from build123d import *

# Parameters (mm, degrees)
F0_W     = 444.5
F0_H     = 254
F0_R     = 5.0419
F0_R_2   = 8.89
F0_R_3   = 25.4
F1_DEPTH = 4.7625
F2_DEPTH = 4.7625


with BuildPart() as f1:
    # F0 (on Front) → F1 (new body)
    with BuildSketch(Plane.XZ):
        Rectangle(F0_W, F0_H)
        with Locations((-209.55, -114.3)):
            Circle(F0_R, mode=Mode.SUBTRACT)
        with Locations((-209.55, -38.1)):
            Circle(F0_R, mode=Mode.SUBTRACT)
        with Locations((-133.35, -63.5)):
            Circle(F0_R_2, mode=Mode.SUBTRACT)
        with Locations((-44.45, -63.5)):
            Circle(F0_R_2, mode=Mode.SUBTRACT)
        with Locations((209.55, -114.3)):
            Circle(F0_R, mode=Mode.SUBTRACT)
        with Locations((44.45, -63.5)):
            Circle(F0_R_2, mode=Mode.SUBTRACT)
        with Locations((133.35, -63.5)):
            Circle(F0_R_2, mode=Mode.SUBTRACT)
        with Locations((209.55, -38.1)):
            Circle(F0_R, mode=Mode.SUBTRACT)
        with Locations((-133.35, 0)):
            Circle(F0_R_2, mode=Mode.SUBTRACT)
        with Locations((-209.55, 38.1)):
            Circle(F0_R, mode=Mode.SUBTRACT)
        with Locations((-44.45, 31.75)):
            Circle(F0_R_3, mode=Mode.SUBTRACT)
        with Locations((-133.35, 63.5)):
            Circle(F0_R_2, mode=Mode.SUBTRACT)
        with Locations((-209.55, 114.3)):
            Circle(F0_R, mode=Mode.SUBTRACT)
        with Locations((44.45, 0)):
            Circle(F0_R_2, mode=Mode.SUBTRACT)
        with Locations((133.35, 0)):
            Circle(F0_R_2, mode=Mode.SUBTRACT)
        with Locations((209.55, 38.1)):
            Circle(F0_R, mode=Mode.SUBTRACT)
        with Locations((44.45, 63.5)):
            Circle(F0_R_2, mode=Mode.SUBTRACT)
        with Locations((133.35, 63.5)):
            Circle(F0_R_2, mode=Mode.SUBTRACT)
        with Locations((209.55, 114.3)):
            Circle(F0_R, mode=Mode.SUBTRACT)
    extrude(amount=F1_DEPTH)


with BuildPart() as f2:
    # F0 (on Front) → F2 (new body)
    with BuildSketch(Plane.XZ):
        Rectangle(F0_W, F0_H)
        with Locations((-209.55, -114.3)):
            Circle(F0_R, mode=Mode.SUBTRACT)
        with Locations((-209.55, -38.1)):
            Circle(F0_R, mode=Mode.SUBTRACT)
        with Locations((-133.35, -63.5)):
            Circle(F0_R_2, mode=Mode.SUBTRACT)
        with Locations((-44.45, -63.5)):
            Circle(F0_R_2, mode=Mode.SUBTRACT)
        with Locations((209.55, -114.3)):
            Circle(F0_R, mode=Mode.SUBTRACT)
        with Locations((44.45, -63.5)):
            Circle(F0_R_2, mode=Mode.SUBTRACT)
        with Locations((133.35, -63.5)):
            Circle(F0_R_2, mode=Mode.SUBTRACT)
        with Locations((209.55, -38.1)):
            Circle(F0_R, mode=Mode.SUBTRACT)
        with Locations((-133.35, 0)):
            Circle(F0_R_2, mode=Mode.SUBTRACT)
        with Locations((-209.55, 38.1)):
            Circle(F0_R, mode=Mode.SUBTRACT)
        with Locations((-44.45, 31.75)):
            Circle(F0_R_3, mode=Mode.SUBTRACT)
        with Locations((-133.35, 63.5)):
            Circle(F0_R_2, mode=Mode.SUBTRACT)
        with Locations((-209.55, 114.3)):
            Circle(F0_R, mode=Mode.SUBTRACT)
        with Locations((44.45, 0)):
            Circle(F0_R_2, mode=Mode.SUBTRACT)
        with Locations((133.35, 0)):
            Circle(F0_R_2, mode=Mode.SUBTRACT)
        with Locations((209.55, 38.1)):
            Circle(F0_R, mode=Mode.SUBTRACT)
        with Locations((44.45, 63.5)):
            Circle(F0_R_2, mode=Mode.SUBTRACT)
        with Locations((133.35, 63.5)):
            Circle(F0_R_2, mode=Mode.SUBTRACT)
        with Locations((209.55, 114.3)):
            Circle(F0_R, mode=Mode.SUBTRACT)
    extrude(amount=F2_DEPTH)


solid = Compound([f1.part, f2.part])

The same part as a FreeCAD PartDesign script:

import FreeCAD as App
import Part
import Sketcher
Q = App.Units.Quantity

doc = App.newDocument("Part")
params = doc.addObject("Spreadsheet::Sheet", "Params")
for row, (alias, value) in enumerate([
    ("sketch1_diameter", "2 in"),
    ("sketch1_diameter2", "0.7 in"),
    ("sketch1_height", "10 in"),
    ("sketch1_diameter3", "0.397 in"),
    ("sketch1_width", "17.5 in"),
    ("pad1_length", "0.1875 in"),
    ("sketch2_diameter", "2 in"),
    ("sketch2_diameter2", "0.7 in"),
    ("sketch2_height", "10 in"),
    ("sketch2_diameter3", "0.397 in"),
    ("sketch2_width", "17.5 in"),
    ("pad2_length", "0.1875 in"),
], start=1):
    params.set(f"A{row}", alias)
    params.set(f"B{row}", "=" + value)
    params.setAlias(f"B{row}", alias)

body = doc.addObject("PartDesign::Body", "Body")

sketch1 = body.newObject("Sketcher::SketchObject", "Sketch")
sketch1.AttachmentSupport = (doc.getObject("XZ_Plane"), [""])
sketch1.MapMode = "FlatFace"
sketch1.addGeometry(Part.LineSegment(App.Vector(-222, 127, 0), App.Vector(-222, -127, 0)), False)
sketch1.addGeometry(Part.LineSegment(App.Vector(-222, -127, 0), App.Vector(222, -127, 0)), False)
sketch1.addGeometry(Part.LineSegment(App.Vector(222, -127, 0), App.Vector(222, 127, 0)), False)
sketch1.addGeometry(Part.LineSegment(App.Vector(222, 127, 0), App.Vector(-222, 127, 0)), False)
sketch1.addGeometry(Part.Circle(App.Vector(-210, -114, 0), App.Vector(0, 0, 1), 5), False)
sketch1.addGeometry(Part.Circle(App.Vector(-133, -64, 0), App.Vector(0, 0, 1), 9), False)
sketch1.addGeometry(Part.Circle(App.Vector(-44, -64, 0), App.Vector(0, 0, 1), 9), False)
sketch1.addGeometry(Part.Circle(App.Vector(-210, -38, 0), App.Vector(0, 0, 1), 5), False)
sketch1.addGeometry(Part.Circle(App.Vector(-133, 0, 0), App.Vector(0, 0, 1), 9), False)
sketch1.addGeometry(Part.Circle(App.Vector(44, -64, 0), App.Vector(0, 0, 1), 9), False)
sketch1.addGeometry(Part.Circle(App.Vector(210, -114, 0), App.Vector(0, 0, 1), 5), False)
sketch1.addGeometry(Part.Circle(App.Vector(133, -64, 0), App.Vector(0, 0, 1), 9), False)
sketch1.addGeometry(Part.Circle(App.Vector(44, 0, 0), App.Vector(0, 0, 1), 9), False)
sketch1.addGeometry(Part.Circle(App.Vector(210, -38, 0), App.Vector(0, 0, 1), 5), False)
sketch1.addGeometry(Part.Circle(App.Vector(133, 0, 0), App.Vector(0, 0, 1), 9), False)
sketch1.addGeometry(Part.Circle(App.Vector(-210, 38, 0), App.Vector(0, 0, 1), 5), False)
sketch1.addGeometry(Part.Circle(App.Vector(-44, 32, 0), App.Vector(0, 0, 1), 25), False)
sketch1.addGeometry(Part.Circle(App.Vector(-133, 64, 0), App.Vector(0, 0, 1), 9), False)
sketch1.addGeometry(Part.Circle(App.Vector(-210, 114, 0), App.Vector(0, 0, 1), 5), False)
sketch1.addGeometry(Part.Circle(App.Vector(210, 38, 0), App.Vector(0, 0, 1), 5), False)
sketch1.addGeometry(Part.Circle(App.Vector(44, 64, 0), App.Vector(0, 0, 1), 9), False)
sketch1.addGeometry(Part.Circle(App.Vector(133, 64, 0), App.Vector(0, 0, 1), 9), False)
sketch1.addGeometry(Part.Circle(App.Vector(210, 114, 0), App.Vector(0, 0, 1), 5), False)
sketch1.addConstraint(Sketcher.Constraint("Coincident", 0, 2, 1, 1))
sketch1.addConstraint(Sketcher.Constraint("Coincident", 1, 2, 2, 1))
sketch1.addConstraint(Sketcher.Constraint("Coincident", 2, 2, 3, 1))
sketch1.addConstraint(Sketcher.Constraint("Coincident", 3, 2, 0, 1))
sketch1.addConstraint(Sketcher.Constraint("Vertical", 0))
sketch1.addConstraint(Sketcher.Constraint("Horizontal", 1))
sketch1.addConstraint(Sketcher.Constraint("Vertical", 2))
sketch1.addConstraint(Sketcher.Constraint("Horizontal", 3))
sketch1.addConstraint(Sketcher.Constraint("Equal", 5, 6))
sketch1.addConstraint(Sketcher.Constraint("Equal", 4, 7))
sketch1.addConstraint(Sketcher.Constraint("Equal", 6, 8))
sketch1.addConstraint(Sketcher.Constraint("Equal", 8, 9))
sketch1.addConstraint(Sketcher.Constraint("Equal", 7, 10))
sketch1.addConstraint(Sketcher.Constraint("Equal", 9, 11))
sketch1.addConstraint(Sketcher.Constraint("Equal", 11, 12))
sketch1.addConstraint(Sketcher.Constraint("Equal", 10, 13))
sketch1.addConstraint(Sketcher.Constraint("Equal", 12, 14))
sketch1.addConstraint(Sketcher.Constraint("Equal", 13, 15))
sketch1.addConstraint(Sketcher.Constraint("Equal", 14, 17))
sketch1.addConstraint(Sketcher.Constraint("Equal", 15, 18))
sketch1.addConstraint(Sketcher.Constraint("Equal", 18, 19))
sketch1.addConstraint(Sketcher.Constraint("Equal", 17, 20))
sketch1.addConstraint(Sketcher.Constraint("Equal", 20, 21))
sketch1.addConstraint(Sketcher.Constraint("Equal", 19, 22))
sketch1.addConstraint(Sketcher.Constraint("Symmetric", 8, 3, 14, 3, -1, 1))
sketch1.addConstraint(Sketcher.Constraint("Symmetric", 13, 3, 15, 3, -1, 1))
sketch1.addConstraint(Sketcher.Constraint("Symmetric", 11, 3, 17, 3, -1, 1))
sketch1.addConstraint(Sketcher.Constraint("Symmetric", 10, 3, 18, 3, -1, 1))
sketch1.addConstraint(Sketcher.Constraint("Symmetric", 7, 3, 19, 3, -1, 1))
sketch1.addConstraint(Sketcher.Constraint("Symmetric", 6, 3, 20, 3, -1, 1))
sketch1.addConstraint(Sketcher.Constraint("Symmetric", 5, 3, 21, 3, -1, 1))
sketch1.addConstraint(Sketcher.Constraint("Symmetric", 4, 3, 22, 3, -1, 1))
sketch1.addConstraint(Sketcher.Constraint("Symmetric", 0, 2, 2, 2, -1, 1))
sketch1.addConstraint(Sketcher.Constraint("Symmetric", 6, 3, 9, 3, -2))
sketch1.addConstraint(Sketcher.Constraint("Symmetric", 4, 3, 10, 3, -2))
sketch1.addConstraint(Sketcher.Constraint("Symmetric", 5, 3, 11, 3, -2))
sketch1.addConstraint(Sketcher.Constraint("Symmetric", 7, 3, 13, 3, -2))
sketch1.addConstraint(Sketcher.Constraint("PointOnObject", 8, 3, -1))
sketch1.addConstraint(Sketcher.Constraint("PointOnObject", 12, 3, -1))
sketch1.addConstraint(Sketcher.Constraint("Horizontal", 5, 3, 6, 3))
sketch1.addConstraint(Sketcher.Constraint("Vertical", 4, 3, 7, 3))
sketch1.addConstraint(Sketcher.Constraint("Vertical", 5, 3, 8, 3))
sketch1.addConstraint(Sketcher.Constraint("Vertical", 9, 3, 12, 3))
sketch1.addConstraint(Sketcher.Constraint("Vertical", 6, 3, 16, 3))
sketch1.addConstraint(Sketcher.Constraint("Diameter", 16, Q("2 in")))
sketch1.addConstraint(Sketcher.Constraint("Diameter", 5, Q("0.7 in")))
sketch1.addConstraint(Sketcher.Constraint("DistanceY", 0, 2, 0, 1, Q("10 in")))
sketch1.addConstraint(Sketcher.Constraint("Diameter", 4, Q("0.397 in")))
sketch1.addConstraint(Sketcher.Constraint("DistanceX", 1, 1, 1, 2, Q("17.5 in")))
sketch1.addConstraint(Sketcher.Constraint("DistanceX", 4, 3, 5, 3, Q("3 in")))
sketch1.addConstraint(Sketcher.Constraint("DistanceY", 4, 3, 5, 3, Q("2 in")))
sketch1.addConstraint(Sketcher.Constraint("DistanceY", 4, 3, 7, 3, Q("3 in")))
sketch1.addConstraint(Sketcher.Constraint("DistanceX", 5, 3, 9, 3, Q("7 in")))
sketch1.addConstraint(Sketcher.Constraint("DistanceY", 7, 3, 15, 3, Q("3 in")))
sketch1.addConstraint(Sketcher.Constraint("DistanceX", 5, 3, 6, 3, Q("3.5 in")))
sketch1.addConstraint(Sketcher.Constraint("DistanceY", -1, 1, 16, 3, Q("1.25 in")))
sketch1.setExpression("Constraints[44]", "Params.sketch1_diameter")
sketch1.setExpression("Constraints[45]", "Params.sketch1_diameter2")
sketch1.setExpression("Constraints[46]", "Params.sketch1_height")
sketch1.setExpression("Constraints[47]", "Params.sketch1_diameter3")
sketch1.setExpression("Constraints[48]", "Params.sketch1_width")
pad1 = body.newObject("PartDesign::Pad", "Pad")
pad1.Profile = sketch1
pad1.setExpression("Length", "Params.pad1_length")
body2 = doc.addObject("PartDesign::Body", "Body001")

sketch2 = body2.newObject("Sketcher::SketchObject", "Sketch001")
sketch2.AttachmentSupport = (doc.getObject("XZ_Plane001"), [""])
sketch2.MapMode = "FlatFace"
sketch2.addGeometry(Part.LineSegment(App.Vector(-222, 127, 0), App.Vector(-222, -127, 0)), False)
sketch2.addGeometry(Part.LineSegment(App.Vector(-222, -127, 0), App.Vector(222, -127, 0)), False)
sketch2.addGeometry(Part.LineSegment(App.Vector(222, -127, 0), App.Vector(222, 127, 0)), False)
sketch2.addGeometry(Part.LineSegment(App.Vector(222, 127, 0), App.Vector(-222, 127, 0)), False)
sketch2.addGeometry(Part.Circle(App.Vector(-210, -114, 0), App.Vector(0, 0, 1), 5), False)
sketch2.addGeometry(Part.Circle(App.Vector(-133, -64, 0), App.Vector(0, 0, 1), 9), False)
sketch2.addGeometry(Part.Circle(App.Vector(-44, -64, 0), App.Vector(0, 0, 1), 9), False)
sketch2.addGeometry(Part.Circle(App.Vector(-210, -38, 0), App.Vector(0, 0, 1), 5), False)
sketch2.addGeometry(Part.Circle(App.Vector(-133, 0, 0), App.Vector(0, 0, 1), 9), False)
sketch2.addGeometry(Part.Circle(App.Vector(44, -64, 0), App.Vector(0, 0, 1), 9), False)
sketch2.addGeometry(Part.Circle(App.Vector(210, -114, 0), App.Vector(0, 0, 1), 5), False)
sketch2.addGeometry(Part.Circle(App.Vector(133, -64, 0), App.Vector(0, 0, 1), 9), False)
sketch2.addGeometry(Part.Circle(App.Vector(44, 0, 0), App.Vector(0, 0, 1), 9), False)
sketch2.addGeometry(Part.Circle(App.Vector(210, -38, 0), App.Vector(0, 0, 1), 5), False)
sketch2.addGeometry(Part.Circle(App.Vector(133, 0, 0), App.Vector(0, 0, 1), 9), False)
sketch2.addGeometry(Part.Circle(App.Vector(-210, 38, 0), App.Vector(0, 0, 1), 5), False)
sketch2.addGeometry(Part.Circle(App.Vector(-44, 32, 0), App.Vector(0, 0, 1), 25), False)
sketch2.addGeometry(Part.Circle(App.Vector(-133, 64, 0), App.Vector(0, 0, 1), 9), False)
sketch2.addGeometry(Part.Circle(App.Vector(-210, 114, 0), App.Vector(0, 0, 1), 5), False)
sketch2.addGeometry(Part.Circle(App.Vector(210, 38, 0), App.Vector(0, 0, 1), 5), False)
sketch2.addGeometry(Part.Circle(App.Vector(44, 64, 0), App.Vector(0, 0, 1), 9), False)
sketch2.addGeometry(Part.Circle(App.Vector(133, 64, 0), App.Vector(0, 0, 1), 9), False)
sketch2.addGeometry(Part.Circle(App.Vector(210, 114, 0), App.Vector(0, 0, 1), 5), False)
sketch2.addConstraint(Sketcher.Constraint("Coincident", 0, 2, 1, 1))
sketch2.addConstraint(Sketcher.Constraint("Coincident", 1, 2, 2, 1))
sketch2.addConstraint(Sketcher.Constraint("Coincident", 2, 2, 3, 1))
sketch2.addConstraint(Sketcher.Constraint("Coincident", 3, 2, 0, 1))
sketch2.addConstraint(Sketcher.Constraint("Vertical", 0))
sketch2.addConstraint(Sketcher.Constraint("Horizontal", 1))
sketch2.addConstraint(Sketcher.Constraint("Vertical", 2))
sketch2.addConstraint(Sketcher.Constraint("Horizontal", 3))
sketch2.addConstraint(Sketcher.Constraint("Equal", 5, 6))
sketch2.addConstraint(Sketcher.Constraint("Equal", 4, 7))
sketch2.addConstraint(Sketcher.Constraint("Equal", 6, 8))
sketch2.addConstraint(Sketcher.Constraint("Equal", 8, 9))
sketch2.addConstraint(Sketcher.Constraint("Equal", 7, 10))
sketch2.addConstraint(Sketcher.Constraint("Equal", 9, 11))
sketch2.addConstraint(Sketcher.Constraint("Equal", 11, 12))
sketch2.addConstraint(Sketcher.Constraint("Equal", 10, 13))
sketch2.addConstraint(Sketcher.Constraint("Equal", 12, 14))
sketch2.addConstraint(Sketcher.Constraint("Equal", 13, 15))
sketch2.addConstraint(Sketcher.Constraint("Equal", 14, 17))
sketch2.addConstraint(Sketcher.Constraint("Equal", 15, 18))
sketch2.addConstraint(Sketcher.Constraint("Equal", 18, 19))
sketch2.addConstraint(Sketcher.Constraint("Equal", 17, 20))
sketch2.addConstraint(Sketcher.Constraint("Equal", 20, 21))
sketch2.addConstraint(Sketcher.Constraint("Equal", 19, 22))
sketch2.addConstraint(Sketcher.Constraint("Symmetric", 8, 3, 14, 3, -1, 1))
sketch2.addConstraint(Sketcher.Constraint("Symmetric", 13, 3, 15, 3, -1, 1))
sketch2.addConstraint(Sketcher.Constraint("Symmetric", 11, 3, 17, 3, -1, 1))
sketch2.addConstraint(Sketcher.Constraint("Symmetric", 10, 3, 18, 3, -1, 1))
sketch2.addConstraint(Sketcher.Constraint("Symmetric", 7, 3, 19, 3, -1, 1))
sketch2.addConstraint(Sketcher.Constraint("Symmetric", 6, 3, 20, 3, -1, 1))
sketch2.addConstraint(Sketcher.Constraint("Symmetric", 5, 3, 21, 3, -1, 1))
sketch2.addConstraint(Sketcher.Constraint("Symmetric", 4, 3, 22, 3, -1, 1))
sketch2.addConstraint(Sketcher.Constraint("Symmetric", 0, 2, 2, 2, -1, 1))
sketch2.addConstraint(Sketcher.Constraint("Symmetric", 6, 3, 9, 3, -2))
sketch2.addConstraint(Sketcher.Constraint("Symmetric", 4, 3, 10, 3, -2))
sketch2.addConstraint(Sketcher.Constraint("Symmetric", 5, 3, 11, 3, -2))
sketch2.addConstraint(Sketcher.Constraint("Symmetric", 7, 3, 13, 3, -2))
sketch2.addConstraint(Sketcher.Constraint("PointOnObject", 8, 3, -1))
sketch2.addConstraint(Sketcher.Constraint("PointOnObject", 12, 3, -1))
sketch2.addConstraint(Sketcher.Constraint("Horizontal", 5, 3, 6, 3))
sketch2.addConstraint(Sketcher.Constraint("Vertical", 4, 3, 7, 3))
sketch2.addConstraint(Sketcher.Constraint("Vertical", 5, 3, 8, 3))
sketch2.addConstraint(Sketcher.Constraint("Vertical", 9, 3, 12, 3))
sketch2.addConstraint(Sketcher.Constraint("Vertical", 6, 3, 16, 3))
sketch2.addConstraint(Sketcher.Constraint("Diameter", 16, Q("2 in")))
sketch2.addConstraint(Sketcher.Constraint("Diameter", 5, Q("0.7 in")))
sketch2.addConstraint(Sketcher.Constraint("DistanceY", 0, 2, 0, 1, Q("10 in")))
sketch2.addConstraint(Sketcher.Constraint("Diameter", 4, Q("0.397 in")))
sketch2.addConstraint(Sketcher.Constraint("DistanceX", 1, 1, 1, 2, Q("17.5 in")))
sketch2.addConstraint(Sketcher.Constraint("DistanceX", 4, 3, 5, 3, Q("3 in")))
sketch2.addConstraint(Sketcher.Constraint("DistanceY", 4, 3, 5, 3, Q("2 in")))
sketch2.addConstraint(Sketcher.Constraint("DistanceY", 4, 3, 7, 3, Q("3 in")))
sketch2.addConstraint(Sketcher.Constraint("DistanceX", 5, 3, 9, 3, Q("7 in")))
sketch2.addConstraint(Sketcher.Constraint("DistanceY", 7, 3, 15, 3, Q("3 in")))
sketch2.addConstraint(Sketcher.Constraint("DistanceX", 5, 3, 6, 3, Q("3.5 in")))
sketch2.addConstraint(Sketcher.Constraint("DistanceY", -1, 1, 16, 3, Q("1.25 in")))
sketch2.setExpression("Constraints[44]", "Params.sketch2_diameter")
sketch2.setExpression("Constraints[45]", "Params.sketch2_diameter2")
sketch2.setExpression("Constraints[46]", "Params.sketch2_height")
sketch2.setExpression("Constraints[47]", "Params.sketch2_diameter3")
sketch2.setExpression("Constraints[48]", "Params.sketch2_width")
pad2 = body2.newObject("PartDesign::Pad", "Pad001")
pad2.Profile = sketch2
pad2.setExpression("Length", "Params.pad2_length")

doc.recompute()
